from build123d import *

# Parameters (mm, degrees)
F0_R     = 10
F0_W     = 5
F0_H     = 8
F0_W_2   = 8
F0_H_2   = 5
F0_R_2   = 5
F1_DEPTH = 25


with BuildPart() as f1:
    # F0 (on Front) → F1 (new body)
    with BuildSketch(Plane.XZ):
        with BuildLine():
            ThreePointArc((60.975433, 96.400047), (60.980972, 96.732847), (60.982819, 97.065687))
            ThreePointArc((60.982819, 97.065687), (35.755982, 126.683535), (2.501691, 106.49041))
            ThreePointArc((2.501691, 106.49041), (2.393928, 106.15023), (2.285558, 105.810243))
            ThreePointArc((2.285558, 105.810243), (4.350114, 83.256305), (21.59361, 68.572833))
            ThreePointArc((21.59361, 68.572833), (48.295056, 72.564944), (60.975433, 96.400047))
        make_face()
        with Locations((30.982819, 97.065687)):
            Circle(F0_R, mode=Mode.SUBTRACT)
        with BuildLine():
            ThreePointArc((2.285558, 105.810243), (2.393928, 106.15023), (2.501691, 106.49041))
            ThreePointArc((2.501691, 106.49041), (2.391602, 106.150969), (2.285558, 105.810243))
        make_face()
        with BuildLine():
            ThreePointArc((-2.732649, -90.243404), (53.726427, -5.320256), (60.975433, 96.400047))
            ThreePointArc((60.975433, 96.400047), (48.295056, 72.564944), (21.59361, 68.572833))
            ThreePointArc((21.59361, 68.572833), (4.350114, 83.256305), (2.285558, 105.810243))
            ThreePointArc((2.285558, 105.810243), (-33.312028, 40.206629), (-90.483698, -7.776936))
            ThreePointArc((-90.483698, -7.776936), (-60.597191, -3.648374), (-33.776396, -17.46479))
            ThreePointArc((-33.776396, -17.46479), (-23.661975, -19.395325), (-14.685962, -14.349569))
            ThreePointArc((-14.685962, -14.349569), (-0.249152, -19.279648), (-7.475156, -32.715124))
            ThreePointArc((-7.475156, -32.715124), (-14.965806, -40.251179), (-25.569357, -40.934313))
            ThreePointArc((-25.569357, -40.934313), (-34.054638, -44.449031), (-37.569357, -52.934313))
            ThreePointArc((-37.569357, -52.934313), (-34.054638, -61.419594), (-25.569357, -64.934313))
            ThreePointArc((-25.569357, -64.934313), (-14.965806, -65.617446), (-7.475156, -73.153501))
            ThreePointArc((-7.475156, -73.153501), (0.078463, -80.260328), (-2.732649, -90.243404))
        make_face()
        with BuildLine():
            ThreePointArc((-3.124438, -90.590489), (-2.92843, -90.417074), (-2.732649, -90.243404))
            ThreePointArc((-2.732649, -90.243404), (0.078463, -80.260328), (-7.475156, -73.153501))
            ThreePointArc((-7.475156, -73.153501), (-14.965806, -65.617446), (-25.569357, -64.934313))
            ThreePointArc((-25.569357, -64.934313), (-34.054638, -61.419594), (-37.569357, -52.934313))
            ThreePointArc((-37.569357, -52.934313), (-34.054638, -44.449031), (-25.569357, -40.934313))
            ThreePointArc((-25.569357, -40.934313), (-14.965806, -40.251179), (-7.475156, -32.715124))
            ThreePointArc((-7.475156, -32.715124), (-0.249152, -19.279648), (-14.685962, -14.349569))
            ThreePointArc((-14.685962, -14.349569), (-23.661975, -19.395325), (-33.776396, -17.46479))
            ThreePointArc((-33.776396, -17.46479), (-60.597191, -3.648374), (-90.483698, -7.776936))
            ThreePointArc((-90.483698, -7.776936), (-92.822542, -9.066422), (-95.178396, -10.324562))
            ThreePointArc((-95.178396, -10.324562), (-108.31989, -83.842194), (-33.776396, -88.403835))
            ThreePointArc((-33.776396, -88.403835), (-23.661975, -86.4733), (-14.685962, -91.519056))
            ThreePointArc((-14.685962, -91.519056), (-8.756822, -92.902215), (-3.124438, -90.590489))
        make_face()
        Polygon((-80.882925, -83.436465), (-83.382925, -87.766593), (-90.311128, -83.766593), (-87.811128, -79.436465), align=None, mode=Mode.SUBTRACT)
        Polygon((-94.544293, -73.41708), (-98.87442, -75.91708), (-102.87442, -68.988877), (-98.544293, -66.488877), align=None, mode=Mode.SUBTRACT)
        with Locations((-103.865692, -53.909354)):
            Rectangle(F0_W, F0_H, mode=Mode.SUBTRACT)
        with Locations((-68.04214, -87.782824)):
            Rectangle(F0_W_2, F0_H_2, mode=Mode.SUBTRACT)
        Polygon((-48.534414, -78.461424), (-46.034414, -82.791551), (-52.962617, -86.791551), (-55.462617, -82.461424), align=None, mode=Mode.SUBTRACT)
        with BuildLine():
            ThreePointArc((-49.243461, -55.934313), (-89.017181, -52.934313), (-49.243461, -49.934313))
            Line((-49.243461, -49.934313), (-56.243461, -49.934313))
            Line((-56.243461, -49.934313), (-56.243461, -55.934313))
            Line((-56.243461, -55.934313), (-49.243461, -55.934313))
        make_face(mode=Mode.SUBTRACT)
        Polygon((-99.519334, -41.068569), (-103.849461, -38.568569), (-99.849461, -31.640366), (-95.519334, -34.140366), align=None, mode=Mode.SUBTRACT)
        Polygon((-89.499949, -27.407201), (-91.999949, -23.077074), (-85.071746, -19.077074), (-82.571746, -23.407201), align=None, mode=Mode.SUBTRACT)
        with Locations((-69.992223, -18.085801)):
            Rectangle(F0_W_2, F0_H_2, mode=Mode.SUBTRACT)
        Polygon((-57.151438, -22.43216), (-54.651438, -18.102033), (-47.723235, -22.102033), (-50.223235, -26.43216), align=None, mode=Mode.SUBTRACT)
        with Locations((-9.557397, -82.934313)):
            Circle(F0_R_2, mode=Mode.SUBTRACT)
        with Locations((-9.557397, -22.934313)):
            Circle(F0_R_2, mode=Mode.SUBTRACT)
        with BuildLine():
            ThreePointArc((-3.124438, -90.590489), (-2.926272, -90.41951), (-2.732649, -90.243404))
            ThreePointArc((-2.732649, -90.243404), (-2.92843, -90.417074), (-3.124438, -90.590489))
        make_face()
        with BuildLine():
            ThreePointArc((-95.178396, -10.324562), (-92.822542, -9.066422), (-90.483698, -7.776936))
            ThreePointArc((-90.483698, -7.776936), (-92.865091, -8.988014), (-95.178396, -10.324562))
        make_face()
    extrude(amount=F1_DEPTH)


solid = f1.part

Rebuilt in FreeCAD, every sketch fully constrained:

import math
import FreeCAD as App
import Part
import Sketcher

V = App.Vector


def add_polygon(sketch, points):
    """Adds a closed chain of lines whose ends are joined by coincident constraints."""
    first, n = sketch.GeometryCount, len(points)
    for a, b in zip(points, points[1:] + points[:1]):
        sketch.addGeometry(Part.LineSegment(App.Vector(*a, 0), App.Vector(*b, 0)), False)
    for i in range(n):
        sketch.addConstraint(Sketcher.Constraint("Coincident", first + i, 2, first + (i + 1) % n, 1))

doc = App.newDocument("Part")
body = doc.addObject("PartDesign::Body", "Body")

# Sketch on XZ plane
sketch1 = body.newObject("Sketcher::SketchObject", "Sketch")
sketch1.AttachmentSupport = (doc.getObject("XZ_Plane"), [""])
sketch1.MapMode = "FlatFace"
sketch1.addGeometry(Part.ArcOfCircle(Part.Circle(V(30.977483, 97.065768, 0), V(0, 0, 1), 30.005336), math.radians(-1.271311), math.radians(-0.000154)), False)  # 0
sketch1.addGeometry(Part.ArcOfCircle(Part.Circle(V(30.982818, 97.065687, 0), V(0, 0, 1), 30.000001), math.radians(0.000001), math.radians(161.690043)), False)  # 1
sketch1.addGeometry(Part.ArcOfCircle(Part.Circle(V(30.985874, 97.064722, 0), V(0, 0, 1), 30.003205), math.radians(161.690127), math.radians(163.053044)), False)  # 2
sketch1.addGeometry(Part.ArcOfCircle(Part.Circle(V(-188.214184, 166.718775, 0), V(0, 0, 1), 200.000002), math.radians(-60.747952), math.radians(-17.730651)), False)  # 3
sketch1.addGeometry(Part.ArcOfCircle(Part.Circle(V(-69.017038, -52.934577, 0), V(0, 0, 1), 50.000301), math.radians(115.425087), math.radians(121.548762)), False)  # 4
sketch1.addGeometry(Part.ArcOfCircle(Part.Circle(V(-69.017182, -52.934313, 0), V(0, 0, 1), 50), math.radians(121.54878), math.radians(314.814658)), False)  # 5
sketch1.addGeometry(Part.ArcOfCircle(Part.Circle(V(-26.077757, -101.277488, 0), V(0, 0, 1), 15), math.radians(40.584), math.radians(120.880061)), False)  # 6
sketch1.addGeometry(Part.ArcOfCircle(Part.Circle(V(-9.557397, -82.934313, 0), V(0, 0, 1), 10), math.radians(-120.854288), math.radians(-49.961972)), False)  # 7
sketch1.addGeometry(Part.ArcOfCircle(Part.Circle(V(-9.557547, -82.934138, 0), V(0, 0, 1), 10.00023), math.radians(-49.961958), math.radians(-46.962719)), False)  # 8
sketch1.addGeometry(Part.ArcOfCircle(Part.Circle(V(-135.550936, 59.286874, 0), V(0, 0, 1), 200.000003), math.radians(-48.38734), math.radians(10.694125)), False)  # 9
add_polygon(sketch1, [(-98.544293, -66.488877), (-94.544293, -73.41708), (-98.87442, -75.91708), (-102.87442, -68.988877)])  # lines 10-13
add_polygon(sketch1, [(-87.811128, -79.436465), (-80.882925, -83.436465), (-83.382925, -87.766593), (-90.311128, -83.766593)])  # lines 14-17
add_polygon(sketch1, [(-101.365692, -57.909354), (-106.365692, -57.909354), (-106.365692, -49.909354), (-101.365692, -49.909354)])  # lines 18-21
add_polygon(sketch1, [(-64.04214, -90.282824), (-72.04214, -90.282824), (-72.04214, -85.282824), (-64.04214, -85.282824)])  # lines 22-25
add_polygon(sketch1, [(-55.462617, -82.461424), (-48.534414, -78.461424), (-46.034414, -82.791551), (-52.962617, -86.791551)])  # lines 26-29
sketch1.addGeometry(Part.LineSegment(V(-56.243461, -55.934313, 0), V(-49.243461, -55.934313, 0)), False)  # 30
sketch1.addGeometry(Part.ArcOfCircle(Part.Circle(V(-69.017181, -52.934313, 0), V(0, 0, 1), 20), math.radians(8.626927), math.radians(351.373073)), False)  # 31
sketch1.addGeometry(Part.LineSegment(V(-49.243461, -49.934313, 0), V(-56.243461, -49.934313, 0)), False)  # 32
sketch1.addGeometry(Part.LineSegment(V(-56.243461, -49.934313, 0), V(-56.243461, -55.934313, 0)), False)  # 33
add_polygon(sketch1, [(-95.519334, -34.140366), (-99.519334, -41.068569), (-103.849461, -38.568569), (-99.849461, -31.640366)])  # lines 34-37
add_polygon(sketch1, [(-82.571746, -23.407201), (-89.499949, -27.407201), (-91.999949, -23.077074), (-85.071746, -19.077074)])  # lines 38-41
add_polygon(sketch1, [(-65.992223, -20.585801), (-73.992223, -20.585801), (-73.992223, -15.585801), (-65.992223, -15.585801)])  # lines 42-45
add_polygon(sketch1, [(-50.223235, -26.43216), (-57.151438, -22.43216), (-54.651438, -18.102033), (-47.723235, -22.102033)])  # lines 46-49
sketch1.addGeometry(Part.Circle(V(-9.557397, -82.934313, 0), V(0, 0, 1), 5), False)  # 50
sketch1.addGeometry(Part.Circle(V(-9.557397, -22.934313, 0), V(0, 0, 1), 5), False)  # 51
sketch1.addGeometry(Part.Circle(V(30.982819, 97.065687, 0), V(0, 0, 1), 10), False)  # 52
sketch1.addConstraint([
    Sketcher.Constraint("Coincident", 0, 2, 1, 1),
    Sketcher.Constraint("Coincident", 1, 2, 2, 1),
    Sketcher.Constraint("Coincident", 2, 2, 3, 2),
    Sketcher.Constraint("Coincident", 3, 1, 4, 1),
    Sketcher.Constraint("Coincident", 4, 2, 5, 1),
    Sketcher.Constraint("Coincident", 5, 2, 6, 2),
    Sketcher.Constraint("Coincident", 6, 1, 7, 1),
    Sketcher.Constraint("Coincident", 7, 2, 8, 1),
    Sketcher.Constraint("Coincident", 8, 2, 9, 1),
    Sketcher.Constraint("Coincident", 9, 2, 0, 1),
    Sketcher.Constraint("Coincident", 30, 2, 31, 2),
    Sketcher.Constraint("Coincident", 31, 1, 32, 1),
    Sketcher.Constraint("Coincident", 32, 2, 33, 1),
    Sketcher.Constraint("Coincident", 33, 2, 30, 1),
    Sketcher.Constraint("Horizontal", 18),
    Sketcher.Constraint("Vertical", 19),
    Sketcher.Constraint("Horizontal", 20),
    Sketcher.Constraint("Vertical", 21),
    Sketcher.Constraint("Horizontal", 22),
    Sketcher.Constraint("Vertical", 23),
    Sketcher.Constraint("Horizontal", 24),
    Sketcher.Constraint("Vertical", 25),
    Sketcher.Constraint("Horizontal", 30),
    Sketcher.Constraint("Horizontal", 32),
    Sketcher.Constraint("Vertical", 33),
    Sketcher.Constraint("Horizontal", 42),
    Sketcher.Constraint("Vertical", 43),
    Sketcher.Constraint("Horizontal", 44),
    Sketcher.Constraint("Vertical", 45),
    Sketcher.Constraint("Coincident", 31, 3, 5, 3),
    Sketcher.Constraint("Coincident", 50, 3, 7, 3),
    Sketcher.Constraint("Coincident", 52, 3, 1, 3),
    Sketcher.Constraint("Diameter", 50, 10.0),
    Sketcher.Constraint("Diameter", 51, 10.0),
    Sketcher.Constraint("Diameter", 52, 20.0),
    Sketcher.Constraint("Radius", 1, 30.000001),
    Sketcher.Constraint("Radius", 5, 50.0),
    Sketcher.Constraint("Radius", 6, 15.0),
    Sketcher.Constraint("Radius", 7, 10.0),
    Sketcher.Constraint("Radius", 31, 20.0),
    Sketcher.Constraint("DistanceX", 18, 2, 18, 1, 5.0),
    Sketcher.Constraint("DistanceX", 22, 2, 22, 1, 8.0),
    Sketcher.Constraint("DistanceX", 30, 1, 30, 2, 7.0),
    Sketcher.Constraint("DistanceX", 32, 2, 32, 1, 7.0),
    Sketcher.Constraint("DistanceX", 42, 2, 42, 1, 8.0),
    Sketcher.Constraint("DistanceY", 19, 1, 19, 2, 8.0),
    Sketcher.Constraint("DistanceY", 23, 1, 23, 2, 5.0),
    Sketcher.Constraint("DistanceY", 33, 2, 33, 1, 6.0),
    Sketcher.Constraint("DistanceY", 43, 1, 43, 2, 5.0),
    Sketcher.Constraint("Distance", 10, 8.0),
    Sketcher.Constraint("Distance", 11, 5.0),
    Sketcher.Constraint("Distance", 12, 8.0),
    Sketcher.Constraint("Distance", 13, 5.0),
    Sketcher.Constraint("Distance", 14, 8.0),
    Sketcher.Constraint("Distance", 15, 5.000001),
    Sketcher.Constraint("Distance", 16, 8.0),
    Sketcher.Constraint("Distance", 17, 5.000001),
    Sketcher.Constraint("Distance", 26, 8.0),
    Sketcher.Constraint("Distance", 27, 5.0),
    Sketcher.Constraint("Distance", 28, 8.0),
    Sketcher.Constraint("Distance", 29, 5.0),
    Sketcher.Constraint("Distance", 34, 8.0),
    Sketcher.Constraint("Distance", 35, 5.0),
    Sketcher.Constraint("Distance", 36, 8.0),
    Sketcher.Constraint("Distance", 37, 5.0),
    Sketcher.Constraint("Distance", 38, 8.0),
    Sketcher.Constraint("Distance", 39, 5.0),
    Sketcher.Constraint("Distance", 40, 8.0),
    Sketcher.Constraint("Distance", 41, 5.0),
    Sketcher.Constraint("Distance", 46, 8.0),
    Sketcher.Constraint("Distance", 47, 5.0),
    Sketcher.Constraint("Distance", 48, 8.0),
    Sketcher.Constraint("Distance", 49, 5.0),
    Sketcher.Constraint("Radius", 4, 50.000301),
    Sketcher.Constraint("Radius", 8, 10.00023),
    Sketcher.Constraint("Radius", 0, 30.005336),
    Sketcher.Constraint("Radius", 2, 30.003205),
    Sketcher.Constraint("Radius", 3, 200.000002),
    Sketcher.Constraint("Radius", 9, 200.000003),
    Sketcher.Constraint("DistanceY", 38, 2, -1, 1, 27.407201),
    Sketcher.Constraint("DistanceY", 41, 2, -1, 1, 23.407201),
    Sketcher.Constraint("DistanceY", 42, 2, -1, 1, 20.585801),
    Sketcher.Constraint("DistanceX", -1, 1, 1, 3, 30.982818),
    Sketcher.Constraint("DistanceY", -1, 1, 2, 3, 97.064722),
    Sketcher.Constraint("DistanceX", 5, 3, -1, 1, 69.017182),
    Sketcher.Constraint("DistanceY", 6, 3, -1, 1, 101.277488),
    Sketcher.Constraint("DistanceX", -1, 1, 1, 2, 2.501691),
    Sketcher.Constraint("DistanceY", -1, 1, 1, 2, 106.49041),
    Sketcher.Constraint("DistanceX", -1, 1, 2, 2, 2.285558),
    Sketcher.Constraint("DistanceY", 7, 2, -1, 1, 90.590489),
    Sketcher.Constraint("DistanceX", 8, 2, -1, 1, 2.732649),
    Sketcher.Constraint("DistanceY", 10, 2, -1, 1, 73.41708),
    Sketcher.Constraint("DistanceX", 11, 2, -1, 1, 98.87442),
    Sketcher.Constraint("DistanceY", 11, 2, -1, 1, 75.91708),
    Sketcher.Constraint("DistanceX", 12, 2, -1, 1, 102.87442),
    Sketcher.Constraint("DistanceX", 18, 2, -1, 1, 106.365692),
    Sketcher.Constraint("DistanceX", 22, 2, -1, 1, 72.04214),
    Sketcher.Constraint("DistanceY", 27, 2, -1, 1, 82.791551),
    Sketcher.Constraint("DistanceY", 28, 2, -1, 1, 86.791551),
    Sketcher.Constraint("DistanceY", 34, 2, -1, 1, 41.068569),
    Sketcher.Constraint("DistanceX", 35, 2, -1, 1, 103.849461),
    Sketcher.Constraint("DistanceY", 35, 2, -1, 1, 38.568569),
    Sketcher.Constraint("DistanceX", 36, 2, -1, 1, 99.849461),
    Sketcher.Constraint("DistanceX", 38, 2, -1, 1, 89.499949),
    Sketcher.Constraint("DistanceX", 39, 2, -1, 1, 91.999949),
    Sketcher.Constraint("DistanceY", 46, 2, -1, 1, 22.43216),
    Sketcher.Constraint("DistanceY", 49, 2, -1, 1, 26.43216),
    Sketcher.Constraint("DistanceY", -1, 1, 0, 3, 97.065768),
    Sketcher.Constraint("DistanceX", 3, 3, -1, 1, 188.214184),
    Sketcher.Constraint("DistanceX", 4, 3, -1, 1, 69.017038),
    Sketcher.Constraint("DistanceY", 4, 3, -1, 1, 52.934577),
    Sketcher.Constraint("DistanceX", 6, 3, -1, 1, 26.077757),
    Sketcher.Constraint("DistanceX", 7, 3, -1, 1, 9.557397),
    Sketcher.Constraint("DistanceY", 7, 3, -1, 1, 82.934313),
    Sketcher.Constraint("DistanceX", 8, 3, -1, 1, 9.557547),
    Sketcher.Constraint("DistanceX", 9, 3, -1, 1, 135.550936),
    Sketcher.Constraint("DistanceX", 51, 3, -1, 1, 9.557397),
    Sketcher.Constraint("DistanceY", 51, 3, -1, 1, 22.934313),
    Sketcher.Constraint("DistanceY", -1, 1, 0, 2, 97.065687),
    Sketcher.Constraint("DistanceX", 4, 2, -1, 1, 95.178396),
    Sketcher.Constraint("DistanceX", 14, 2, -1, 1, 80.882925),
    Sketcher.Constraint("DistanceY", 14, 2, -1, 1, 83.436465),
    Sketcher.Constraint("DistanceX", 15, 2, -1, 1, 83.382925),
    Sketcher.Constraint("DistanceX", 16, 2, -1, 1, 90.311128),
    Sketcher.Constraint("DistanceY", 18, 2, -1, 1, 57.909354),
    Sketcher.Constraint("DistanceY", 22, 2, -1, 1, 90.282824),
    Sketcher.Constraint("DistanceX", 26, 2, -1, 1, 48.534414),
    Sketcher.Constraint("DistanceY", 26, 2, -1, 1, 78.461424),
    Sketcher.Constraint("DistanceX", 42, 2, -1, 1, 73.992223),
    Sketcher.Constraint("DistanceX", 46, 2, -1, 1, 57.151438),
    Sketcher.Constraint("DistanceX", 47, 2, -1, 1, 54.651438),
])
pad1 = body.newObject("PartDesign::Pad", "Pad")
pad1.Profile = sketch1
pad1.Length = 25

doc.recompute()
